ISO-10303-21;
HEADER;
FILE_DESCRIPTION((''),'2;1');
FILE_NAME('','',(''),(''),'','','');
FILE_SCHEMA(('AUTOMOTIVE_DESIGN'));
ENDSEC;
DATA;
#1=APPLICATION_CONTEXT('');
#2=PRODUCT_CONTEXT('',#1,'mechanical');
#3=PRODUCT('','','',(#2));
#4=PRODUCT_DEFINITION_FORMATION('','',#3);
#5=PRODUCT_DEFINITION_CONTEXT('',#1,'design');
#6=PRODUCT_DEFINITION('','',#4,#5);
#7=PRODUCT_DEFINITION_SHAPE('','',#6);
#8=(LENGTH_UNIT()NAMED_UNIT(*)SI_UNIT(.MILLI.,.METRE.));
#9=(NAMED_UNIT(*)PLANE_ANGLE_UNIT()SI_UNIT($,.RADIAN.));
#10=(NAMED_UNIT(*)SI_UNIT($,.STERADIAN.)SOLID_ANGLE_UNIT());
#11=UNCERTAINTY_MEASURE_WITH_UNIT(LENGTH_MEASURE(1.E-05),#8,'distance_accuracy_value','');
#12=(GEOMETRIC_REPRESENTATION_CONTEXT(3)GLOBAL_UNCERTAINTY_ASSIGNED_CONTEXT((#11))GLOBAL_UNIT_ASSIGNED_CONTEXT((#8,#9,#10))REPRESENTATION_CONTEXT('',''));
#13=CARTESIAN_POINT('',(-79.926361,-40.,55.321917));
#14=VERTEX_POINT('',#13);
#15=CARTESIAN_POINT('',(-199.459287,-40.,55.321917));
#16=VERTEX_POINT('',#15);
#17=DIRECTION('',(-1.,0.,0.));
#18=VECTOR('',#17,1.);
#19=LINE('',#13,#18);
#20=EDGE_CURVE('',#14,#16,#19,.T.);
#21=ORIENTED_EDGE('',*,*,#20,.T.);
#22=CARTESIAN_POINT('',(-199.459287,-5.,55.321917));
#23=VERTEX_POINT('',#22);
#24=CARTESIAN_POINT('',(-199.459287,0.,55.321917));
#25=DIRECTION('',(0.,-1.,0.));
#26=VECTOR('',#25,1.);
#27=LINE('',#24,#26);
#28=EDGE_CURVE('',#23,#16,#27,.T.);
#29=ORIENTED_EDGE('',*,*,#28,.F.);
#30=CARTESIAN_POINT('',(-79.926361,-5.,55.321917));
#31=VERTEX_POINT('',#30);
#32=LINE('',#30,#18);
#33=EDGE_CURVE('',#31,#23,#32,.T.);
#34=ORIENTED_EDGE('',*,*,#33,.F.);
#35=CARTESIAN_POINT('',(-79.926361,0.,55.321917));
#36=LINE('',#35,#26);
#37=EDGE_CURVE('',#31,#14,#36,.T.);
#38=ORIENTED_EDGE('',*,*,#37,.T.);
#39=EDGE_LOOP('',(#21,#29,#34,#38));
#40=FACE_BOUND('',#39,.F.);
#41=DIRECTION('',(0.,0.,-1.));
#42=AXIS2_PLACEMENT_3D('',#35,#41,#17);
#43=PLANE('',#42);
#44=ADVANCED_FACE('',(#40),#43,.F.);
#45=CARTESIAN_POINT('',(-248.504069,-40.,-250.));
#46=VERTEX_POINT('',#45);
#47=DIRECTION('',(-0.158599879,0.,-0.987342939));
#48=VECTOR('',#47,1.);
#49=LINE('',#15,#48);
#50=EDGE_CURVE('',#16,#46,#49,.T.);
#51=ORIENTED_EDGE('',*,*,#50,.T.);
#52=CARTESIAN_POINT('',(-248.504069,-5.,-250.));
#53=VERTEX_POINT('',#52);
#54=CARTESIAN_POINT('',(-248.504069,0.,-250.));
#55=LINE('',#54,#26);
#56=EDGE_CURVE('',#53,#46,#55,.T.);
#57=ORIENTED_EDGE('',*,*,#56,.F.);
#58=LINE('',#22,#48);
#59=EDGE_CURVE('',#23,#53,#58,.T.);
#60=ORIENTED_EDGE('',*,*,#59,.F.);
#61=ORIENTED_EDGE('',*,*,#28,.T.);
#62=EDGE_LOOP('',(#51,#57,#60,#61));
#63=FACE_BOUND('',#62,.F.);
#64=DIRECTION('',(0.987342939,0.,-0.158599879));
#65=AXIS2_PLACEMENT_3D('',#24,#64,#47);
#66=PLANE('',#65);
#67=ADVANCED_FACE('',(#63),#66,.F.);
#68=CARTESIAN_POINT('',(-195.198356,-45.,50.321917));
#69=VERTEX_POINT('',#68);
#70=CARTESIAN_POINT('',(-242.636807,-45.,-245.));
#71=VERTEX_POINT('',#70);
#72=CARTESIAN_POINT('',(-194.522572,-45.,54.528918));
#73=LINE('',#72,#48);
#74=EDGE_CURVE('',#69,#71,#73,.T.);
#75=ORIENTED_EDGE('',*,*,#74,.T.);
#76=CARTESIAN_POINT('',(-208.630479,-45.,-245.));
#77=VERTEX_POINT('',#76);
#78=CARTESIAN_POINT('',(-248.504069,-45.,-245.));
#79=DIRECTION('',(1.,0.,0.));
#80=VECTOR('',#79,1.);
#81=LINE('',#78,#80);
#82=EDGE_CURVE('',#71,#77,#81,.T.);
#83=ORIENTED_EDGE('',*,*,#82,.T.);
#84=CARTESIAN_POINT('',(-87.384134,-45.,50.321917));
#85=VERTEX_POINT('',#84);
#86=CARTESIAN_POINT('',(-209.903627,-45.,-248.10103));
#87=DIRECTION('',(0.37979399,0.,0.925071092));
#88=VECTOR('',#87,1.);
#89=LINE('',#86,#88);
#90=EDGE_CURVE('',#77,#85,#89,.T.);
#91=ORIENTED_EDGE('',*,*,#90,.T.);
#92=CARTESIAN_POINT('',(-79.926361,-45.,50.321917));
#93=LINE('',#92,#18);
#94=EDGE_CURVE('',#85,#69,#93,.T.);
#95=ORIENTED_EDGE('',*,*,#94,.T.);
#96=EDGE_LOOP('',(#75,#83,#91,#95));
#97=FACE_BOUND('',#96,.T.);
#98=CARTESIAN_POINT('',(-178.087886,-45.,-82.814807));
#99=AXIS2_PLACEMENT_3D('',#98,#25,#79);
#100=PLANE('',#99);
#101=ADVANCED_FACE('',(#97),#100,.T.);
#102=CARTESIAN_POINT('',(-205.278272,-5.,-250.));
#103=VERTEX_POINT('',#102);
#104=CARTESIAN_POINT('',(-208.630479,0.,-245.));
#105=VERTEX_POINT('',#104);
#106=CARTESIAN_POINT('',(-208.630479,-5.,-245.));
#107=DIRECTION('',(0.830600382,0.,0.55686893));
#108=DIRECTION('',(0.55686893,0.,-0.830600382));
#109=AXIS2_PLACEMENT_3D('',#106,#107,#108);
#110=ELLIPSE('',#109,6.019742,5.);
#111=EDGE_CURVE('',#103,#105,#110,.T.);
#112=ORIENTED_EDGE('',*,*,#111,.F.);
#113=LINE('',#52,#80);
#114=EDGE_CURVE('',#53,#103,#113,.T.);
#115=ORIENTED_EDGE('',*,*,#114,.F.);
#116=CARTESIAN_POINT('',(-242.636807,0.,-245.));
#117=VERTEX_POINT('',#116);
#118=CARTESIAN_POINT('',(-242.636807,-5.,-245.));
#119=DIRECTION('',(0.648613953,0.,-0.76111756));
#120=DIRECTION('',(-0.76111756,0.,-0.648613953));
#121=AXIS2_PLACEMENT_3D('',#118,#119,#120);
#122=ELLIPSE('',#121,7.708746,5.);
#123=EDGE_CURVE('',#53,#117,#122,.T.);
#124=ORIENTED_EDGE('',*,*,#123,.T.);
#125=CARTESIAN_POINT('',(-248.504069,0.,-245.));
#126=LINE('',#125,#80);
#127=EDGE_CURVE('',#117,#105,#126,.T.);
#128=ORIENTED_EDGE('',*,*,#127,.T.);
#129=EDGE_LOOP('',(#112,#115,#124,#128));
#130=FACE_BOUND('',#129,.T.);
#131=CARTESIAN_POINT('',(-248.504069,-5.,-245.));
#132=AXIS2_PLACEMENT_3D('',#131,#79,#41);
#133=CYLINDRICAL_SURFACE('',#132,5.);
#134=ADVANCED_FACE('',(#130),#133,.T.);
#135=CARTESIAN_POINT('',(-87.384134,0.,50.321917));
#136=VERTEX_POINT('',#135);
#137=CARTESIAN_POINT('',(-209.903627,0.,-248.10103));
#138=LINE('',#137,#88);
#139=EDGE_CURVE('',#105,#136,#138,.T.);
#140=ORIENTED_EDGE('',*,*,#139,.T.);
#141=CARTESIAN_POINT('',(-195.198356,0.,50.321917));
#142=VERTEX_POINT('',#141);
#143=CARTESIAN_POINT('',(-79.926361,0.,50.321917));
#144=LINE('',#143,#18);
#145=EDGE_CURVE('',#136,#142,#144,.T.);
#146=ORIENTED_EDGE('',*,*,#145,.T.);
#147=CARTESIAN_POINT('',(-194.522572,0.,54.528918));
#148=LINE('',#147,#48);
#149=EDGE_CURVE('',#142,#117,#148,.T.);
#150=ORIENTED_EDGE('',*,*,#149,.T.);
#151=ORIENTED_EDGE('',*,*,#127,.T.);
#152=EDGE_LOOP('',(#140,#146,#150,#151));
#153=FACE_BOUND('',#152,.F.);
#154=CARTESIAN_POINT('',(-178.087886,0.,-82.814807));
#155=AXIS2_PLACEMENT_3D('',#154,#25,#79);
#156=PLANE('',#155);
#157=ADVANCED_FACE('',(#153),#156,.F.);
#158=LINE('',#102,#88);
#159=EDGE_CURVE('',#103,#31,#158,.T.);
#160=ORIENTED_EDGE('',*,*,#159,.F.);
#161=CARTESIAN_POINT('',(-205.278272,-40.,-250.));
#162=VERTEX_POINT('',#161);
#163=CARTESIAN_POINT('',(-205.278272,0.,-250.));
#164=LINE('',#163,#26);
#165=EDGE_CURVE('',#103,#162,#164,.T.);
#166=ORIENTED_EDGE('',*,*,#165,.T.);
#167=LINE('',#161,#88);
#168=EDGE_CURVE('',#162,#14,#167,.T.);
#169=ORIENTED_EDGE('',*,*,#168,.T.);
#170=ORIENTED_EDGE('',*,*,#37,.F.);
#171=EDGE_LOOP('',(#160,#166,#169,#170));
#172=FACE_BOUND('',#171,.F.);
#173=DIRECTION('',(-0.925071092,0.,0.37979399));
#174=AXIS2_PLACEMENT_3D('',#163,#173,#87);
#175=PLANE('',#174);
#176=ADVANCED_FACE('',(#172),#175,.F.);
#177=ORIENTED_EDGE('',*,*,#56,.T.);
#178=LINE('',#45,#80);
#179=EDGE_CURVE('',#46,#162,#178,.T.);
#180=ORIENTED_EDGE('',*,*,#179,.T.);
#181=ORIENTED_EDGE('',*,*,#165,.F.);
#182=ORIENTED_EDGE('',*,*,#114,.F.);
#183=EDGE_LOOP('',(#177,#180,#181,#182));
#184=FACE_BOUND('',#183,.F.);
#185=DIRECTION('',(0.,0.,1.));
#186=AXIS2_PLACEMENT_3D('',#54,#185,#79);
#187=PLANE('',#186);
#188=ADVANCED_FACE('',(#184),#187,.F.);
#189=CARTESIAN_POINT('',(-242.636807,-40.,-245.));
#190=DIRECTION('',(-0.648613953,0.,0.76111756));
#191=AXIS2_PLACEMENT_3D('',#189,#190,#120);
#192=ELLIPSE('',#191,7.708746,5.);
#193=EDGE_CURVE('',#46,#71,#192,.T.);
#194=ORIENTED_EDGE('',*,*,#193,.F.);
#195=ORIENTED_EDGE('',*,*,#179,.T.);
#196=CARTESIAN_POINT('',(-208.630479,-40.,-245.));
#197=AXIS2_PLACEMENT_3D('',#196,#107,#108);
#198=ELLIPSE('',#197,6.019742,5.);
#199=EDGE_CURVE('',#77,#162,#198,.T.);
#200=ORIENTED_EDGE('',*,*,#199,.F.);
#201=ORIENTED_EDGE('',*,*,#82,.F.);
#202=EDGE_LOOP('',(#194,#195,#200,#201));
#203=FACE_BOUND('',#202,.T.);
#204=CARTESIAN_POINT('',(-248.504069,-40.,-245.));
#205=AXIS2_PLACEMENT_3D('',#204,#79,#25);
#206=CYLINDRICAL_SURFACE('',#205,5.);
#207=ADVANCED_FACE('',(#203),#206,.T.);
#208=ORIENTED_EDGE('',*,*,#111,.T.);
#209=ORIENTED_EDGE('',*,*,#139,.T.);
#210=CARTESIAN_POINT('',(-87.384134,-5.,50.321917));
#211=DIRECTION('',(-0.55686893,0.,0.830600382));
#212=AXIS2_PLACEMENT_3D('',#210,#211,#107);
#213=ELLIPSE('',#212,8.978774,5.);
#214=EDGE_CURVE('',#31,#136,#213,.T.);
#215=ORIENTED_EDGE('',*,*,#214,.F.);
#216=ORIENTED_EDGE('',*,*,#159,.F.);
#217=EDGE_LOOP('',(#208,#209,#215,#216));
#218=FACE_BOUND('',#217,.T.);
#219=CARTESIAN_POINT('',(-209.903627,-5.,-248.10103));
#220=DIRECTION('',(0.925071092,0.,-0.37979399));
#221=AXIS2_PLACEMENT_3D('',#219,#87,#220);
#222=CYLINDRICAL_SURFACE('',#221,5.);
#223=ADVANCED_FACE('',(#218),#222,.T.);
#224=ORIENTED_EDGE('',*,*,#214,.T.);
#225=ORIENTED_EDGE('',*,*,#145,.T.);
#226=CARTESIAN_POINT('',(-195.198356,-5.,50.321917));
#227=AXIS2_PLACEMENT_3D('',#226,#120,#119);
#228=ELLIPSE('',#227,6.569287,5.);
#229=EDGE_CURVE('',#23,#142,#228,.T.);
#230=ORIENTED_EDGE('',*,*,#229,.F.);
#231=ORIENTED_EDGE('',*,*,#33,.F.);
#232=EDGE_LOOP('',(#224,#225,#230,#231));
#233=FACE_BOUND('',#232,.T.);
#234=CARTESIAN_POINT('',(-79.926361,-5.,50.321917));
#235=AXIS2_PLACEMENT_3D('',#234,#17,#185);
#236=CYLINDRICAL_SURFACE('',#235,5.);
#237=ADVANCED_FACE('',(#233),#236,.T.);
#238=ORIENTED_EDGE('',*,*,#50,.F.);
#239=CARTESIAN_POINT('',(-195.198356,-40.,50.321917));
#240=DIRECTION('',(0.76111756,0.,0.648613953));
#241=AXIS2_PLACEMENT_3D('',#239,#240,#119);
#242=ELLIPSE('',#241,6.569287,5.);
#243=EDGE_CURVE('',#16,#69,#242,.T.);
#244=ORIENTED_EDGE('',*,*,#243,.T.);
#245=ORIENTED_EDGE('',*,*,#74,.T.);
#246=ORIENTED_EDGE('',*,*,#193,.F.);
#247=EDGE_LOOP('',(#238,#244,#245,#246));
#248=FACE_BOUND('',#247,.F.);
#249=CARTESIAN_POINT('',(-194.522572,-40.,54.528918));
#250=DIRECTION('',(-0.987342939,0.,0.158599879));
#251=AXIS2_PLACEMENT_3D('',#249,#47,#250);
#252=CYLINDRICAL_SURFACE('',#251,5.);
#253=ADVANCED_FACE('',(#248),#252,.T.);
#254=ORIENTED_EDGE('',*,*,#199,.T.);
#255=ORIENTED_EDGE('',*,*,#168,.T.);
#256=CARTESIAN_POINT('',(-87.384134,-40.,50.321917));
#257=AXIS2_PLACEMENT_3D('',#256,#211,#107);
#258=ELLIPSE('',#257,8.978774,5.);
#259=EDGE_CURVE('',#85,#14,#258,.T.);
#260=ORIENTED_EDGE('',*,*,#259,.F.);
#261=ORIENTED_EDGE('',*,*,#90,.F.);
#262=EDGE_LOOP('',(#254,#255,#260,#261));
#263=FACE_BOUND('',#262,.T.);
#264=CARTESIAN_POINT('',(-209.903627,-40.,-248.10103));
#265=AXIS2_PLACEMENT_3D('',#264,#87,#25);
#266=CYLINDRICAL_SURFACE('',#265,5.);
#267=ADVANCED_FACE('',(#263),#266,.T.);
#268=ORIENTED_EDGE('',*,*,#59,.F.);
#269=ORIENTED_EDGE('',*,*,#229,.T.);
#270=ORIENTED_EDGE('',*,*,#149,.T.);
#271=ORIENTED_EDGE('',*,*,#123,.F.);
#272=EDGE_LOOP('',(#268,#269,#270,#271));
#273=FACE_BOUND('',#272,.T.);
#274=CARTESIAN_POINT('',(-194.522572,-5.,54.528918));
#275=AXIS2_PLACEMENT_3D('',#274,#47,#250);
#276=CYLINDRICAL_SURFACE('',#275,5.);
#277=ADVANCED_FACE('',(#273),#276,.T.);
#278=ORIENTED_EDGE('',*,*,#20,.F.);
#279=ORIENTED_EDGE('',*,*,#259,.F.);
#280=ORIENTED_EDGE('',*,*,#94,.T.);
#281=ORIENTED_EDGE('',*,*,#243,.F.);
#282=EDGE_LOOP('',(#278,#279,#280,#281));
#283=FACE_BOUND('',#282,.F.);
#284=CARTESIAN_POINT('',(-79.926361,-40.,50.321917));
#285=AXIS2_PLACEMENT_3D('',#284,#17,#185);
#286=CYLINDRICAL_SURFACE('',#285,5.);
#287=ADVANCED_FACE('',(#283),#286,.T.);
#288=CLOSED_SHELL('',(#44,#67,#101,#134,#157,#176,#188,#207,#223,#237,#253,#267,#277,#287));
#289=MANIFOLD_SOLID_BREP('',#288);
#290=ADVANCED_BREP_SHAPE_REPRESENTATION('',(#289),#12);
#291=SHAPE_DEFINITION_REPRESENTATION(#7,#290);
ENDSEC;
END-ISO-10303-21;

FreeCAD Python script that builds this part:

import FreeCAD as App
import Part
import Sketcher


def edges_at(feature, points):
    """Names of the edges that pass closest to the given points."""
    edges = feature.Shape.Edges
    near = lambda p: min(range(len(edges)), key=lambda i: edges[i].distToShape(Part.Vertex(*p))[0])
    return sorted({f"Edge{near(p) + 1}" for p in points})

doc = App.newDocument("Part")
body = doc.addObject("PartDesign::Body", "Body")

sketch1 = body.newObject("Sketcher::SketchObject", "Sketch")
sketch1.AttachmentSupport = (doc.getObject("XZ_Plane"), [""])
sketch1.MapMode = "FlatFace"
sketch1.addGeometry(Part.LineSegment(App.Vector(-199.459287, 55.321917, 0), App.Vector(-248.504069, -250, 0)), False)
sketch1.addGeometry(Part.LineSegment(App.Vector(-248.504069, -250, 0), App.Vector(-205.278272, -250, 0)), False)
sketch1.addGeometry(Part.LineSegment(App.Vector(-205.278272, -250, 0), App.Vector(-79.926361, 55.321917, 0)), False)
sketch1.addGeometry(Part.LineSegment(App.Vector(-79.926361, 55.321917, 0), App.Vector(-199.459287, 55.321917, 0)), False)
sketch1.addConstraint(Sketcher.Constraint("Coincident", 0, 2, 1, 1))
sketch1.addConstraint(Sketcher.Constraint("Coincident", 1, 2, 2, 1))
sketch1.addConstraint(Sketcher.Constraint("Coincident", 2, 2, 3, 1))
sketch1.addConstraint(Sketcher.Constraint("Coincident", 3, 2, 0, 1))
sketch1.addConstraint(Sketcher.Constraint("Horizontal", 1))
sketch1.addConstraint(Sketcher.Constraint("Horizontal", 3))
sketch1.addConstraint(Sketcher.Constraint("DistanceY", 0, 2, -1, 1, 250.0))
sketch1.addConstraint(Sketcher.Constraint("Distance", 2, 330.052382))
sketch1.addConstraint(Sketcher.Constraint("DistanceX", 1, 1, 1, 2, 43.225797))
sketch1.addConstraint(Sketcher.Constraint("DistanceX", 3, 2, 3, 1, 119.532926))
sketch1.addConstraint(Sketcher.Constraint("DistanceX", 0, 2, -1, 1, 248.504069))
sketch1.addConstraint(Sketcher.Constraint("DistanceX", 2, 2, -1, 1, 79.926361))
pad1 = body.newObject("PartDesign::Pad", "Pad")
pad1.Profile = sketch1
pad1.Length = 45
doc.recompute()

fillet = body.newObject("PartDesign::Fillet", "Fillet")
fillet.Base = (pad1, edges_at(pad1, [
    (-223.982, 0, -97.339),
    (-226.891, 0, -250),
    (-142.602, 0, -97.339),
    (-139.693, 0, 55.322),
]))
fillet.Radius = 5
doc.recompute()

fillet2 = body.newObject("PartDesign::Fillet", "Fillet001")
fillet2.Base = (fillet, edges_at(fillet, [
    (-223.982, -45, -97.339),
    (-226.891, -45, -250),
    (-142.602, -45, -97.339),
    (-139.693, -45, 55.322),
]))
fillet2.Radius = 5

doc.recompute()
